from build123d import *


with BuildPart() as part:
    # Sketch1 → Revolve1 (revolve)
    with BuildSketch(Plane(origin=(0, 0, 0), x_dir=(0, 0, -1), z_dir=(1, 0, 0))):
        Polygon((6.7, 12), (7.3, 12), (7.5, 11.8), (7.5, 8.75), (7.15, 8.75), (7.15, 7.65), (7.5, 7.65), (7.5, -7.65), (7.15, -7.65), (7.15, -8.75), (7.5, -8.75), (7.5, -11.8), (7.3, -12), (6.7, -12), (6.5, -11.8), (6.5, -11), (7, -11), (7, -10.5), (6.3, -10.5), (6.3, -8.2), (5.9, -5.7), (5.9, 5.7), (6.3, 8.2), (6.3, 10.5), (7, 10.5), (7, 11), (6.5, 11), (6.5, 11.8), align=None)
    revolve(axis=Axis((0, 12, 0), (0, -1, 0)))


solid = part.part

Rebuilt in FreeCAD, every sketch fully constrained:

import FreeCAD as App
import Part
import Sketcher


def add_polygon(sketch, points):
    """Adds a closed chain of lines whose ends are joined by coincident constraints."""
    first, n = sketch.GeometryCount, len(points)
    for a, b in zip(points, points[1:] + points[:1]):
        sketch.addGeometry(Part.LineSegment(App.Vector(*a, 0), App.Vector(*b, 0)), False)
    for i in range(n):
        sketch.addConstraint(Sketcher.Constraint("Coincident", first + i, 2, first + (i + 1) % n, 1))

doc = App.newDocument("Part")
params = doc.addObject("Spreadsheet::Sheet", "Params")
for row, (alias, value) in enumerate([
    ("sketch1_width", "0.8 mm"),
    ("sketch1_width2", "0.5 mm"),
    ("sketch1_width3", "2.3 mm"),
    ("sketch1_width4", "11.4 mm"),
    ("sketch1_width5", "1.1 mm"),
    ("revolution_angle", "360 deg"),
], start=1):
    params.set(f"A{row}", alias)
    params.set(f"B{row}", "=" + value)
    params.setAlias(f"B{row}", alias)

body = doc.addObject("PartDesign::Body", "Body")

sketch1 = doc.addObject("Sketcher::SketchObject", "Sketch")
body.addObject(sketch1)
sketch1.AttachmentSupport = (doc.YZ_Plane, [""])
sketch1.MapMode = "FlatFace"
add_polygon(sketch1, [(12, -7.3), (12, -6.7), (11.8, -6.5), (11, -6.5), (11, -7), (10.5, -7), (10.5, -6.3), (8.2, -6.3), (5.7, -5.9), (-5.7, -5.9), (-8.2, -6.3), (-10.5, -6.3), (-10.5, -7), (-11, -7), (-11, -6.5), (-11.8, -6.5), (-12, -6.7), (-12, -7.3), (-11.8, -7.5), (-8.75, -7.5), (-8.75, -7.15), (-7.65, -7.15), (-7.65, -7.5), (7.65, -7.5), (7.65, -7.15), (8.75, -7.15), (8.75, -7.5), (11.8, -7.5)])
sketch1.addConstraint([
    Sketcher.Constraint("Vertical", 0),
    Sketcher.Constraint("Horizontal", 2),
    Sketcher.Constraint("Vertical", 3),
    Sketcher.Constraint("Horizontal", 4),
    Sketcher.Constraint("Vertical", 5),
    Sketcher.Constraint("Horizontal", 6),
    Sketcher.Constraint("Horizontal", 8),
    Sketcher.Constraint("Horizontal", 10),
    Sketcher.Constraint("Vertical", 11),
    Sketcher.Constraint("Horizontal", 12),
    Sketcher.Constraint("Vertical", 13),
    Sketcher.Constraint("Horizontal", 14),
    Sketcher.Constraint("Vertical", 16),
    Sketcher.Constraint("Horizontal", 18),
    Sketcher.Constraint("Vertical", 19),
    Sketcher.Constraint("Horizontal", 20),
    Sketcher.Constraint("Vertical", 21),
    Sketcher.Constraint("Horizontal", 22),
    Sketcher.Constraint("Vertical", 23),
    Sketcher.Constraint("Horizontal", 24),
    Sketcher.Constraint("Vertical", 25),
    Sketcher.Constraint("Horizontal", 26),
    Sketcher.Constraint("Symmetric", 6, 2, 9, 2, -2),
    Sketcher.Constraint("Symmetric", 4, 2, 11, 2, -2),
    Sketcher.Constraint("Symmetric", 2, 2, 13, 2, -2),
    Sketcher.Constraint("Symmetric", 0, 2, 15, 2, -2),
    Sketcher.Constraint("Symmetric", 20, 2, 23, 2, -2),
    Sketcher.Constraint("Symmetric", 18, 2, 25, 2, -2),
    Sketcher.Constraint("Perpendicular", 1, 15),
    Sketcher.Constraint("Perpendicular", 15, 17),
    Sketcher.Constraint("Perpendicular", 17, 27),
    Sketcher.Constraint("Horizontal", 18, 2, 21, 2),
    Sketcher.Constraint("Horizontal", 16, 2, 27, 2),
    Sketcher.Constraint("Vertical", 14, 2, 17, 2),
    Sketcher.Constraint("Vertical", 1, 2, 26, 2),
    Sketcher.Constraint("Equal", 12, 3),
    Sketcher.Constraint("Equal", 7, 9),
    Sketcher.Constraint("DistanceX", 2, 2, 2, 1, 0.8),
    Sketcher.Constraint("DistanceX", 4, 2, 4, 1, 0.5),
    Sketcher.Constraint("DistanceX", 6, 2, 6, 1, 2.3),
    Sketcher.Constraint("DistanceX", 8, 2, 8, 1, 11.4),
    Sketcher.Constraint("DistanceX", 20, 1, 20, 2, 1.1),
    Sketcher.Constraint("DistanceX", 22, 1, 22, 2, 15.3),
    Sketcher.Constraint("DistanceY", 0, 1, 0, 2, 0.6),
    Sketcher.Constraint("DistanceY", 5, 1, 5, 2, 0.7),
    Sketcher.Constraint("DistanceX", -1, 1, 0, 2, 12.0),
    Sketcher.Constraint("DistanceX", -1, 1, 2, 2, 11.0),
    Sketcher.Constraint("DistanceY", 3, 2, -1, 1, 7.0),
    Sketcher.Constraint("DistanceY", 19, 1, 19, 2, 0.35),
    Sketcher.Constraint("DistanceY", 7, 2, -1, 1, 5.9),
])
sketch1.setExpression("Constraints[65]", "Params.sketch1_width")
sketch1.setExpression("Constraints[66]", "Params.sketch1_width2")
sketch1.setExpression("Constraints[67]", "Params.sketch1_width3")
sketch1.setExpression("Constraints[68]", "Params.sketch1_width4")
sketch1.setExpression("Constraints[69]", "Params.sketch1_width5")
revolution = doc.addObject("PartDesign::Revolution", "Revolution")
body.addObject(revolution)
revolution.Profile = sketch1
revolution.ReferenceAxis = (sketch1, ["H_Axis"])
revolution.setExpression("Angle", "Params.revolution_angle")

doc.recompute()
